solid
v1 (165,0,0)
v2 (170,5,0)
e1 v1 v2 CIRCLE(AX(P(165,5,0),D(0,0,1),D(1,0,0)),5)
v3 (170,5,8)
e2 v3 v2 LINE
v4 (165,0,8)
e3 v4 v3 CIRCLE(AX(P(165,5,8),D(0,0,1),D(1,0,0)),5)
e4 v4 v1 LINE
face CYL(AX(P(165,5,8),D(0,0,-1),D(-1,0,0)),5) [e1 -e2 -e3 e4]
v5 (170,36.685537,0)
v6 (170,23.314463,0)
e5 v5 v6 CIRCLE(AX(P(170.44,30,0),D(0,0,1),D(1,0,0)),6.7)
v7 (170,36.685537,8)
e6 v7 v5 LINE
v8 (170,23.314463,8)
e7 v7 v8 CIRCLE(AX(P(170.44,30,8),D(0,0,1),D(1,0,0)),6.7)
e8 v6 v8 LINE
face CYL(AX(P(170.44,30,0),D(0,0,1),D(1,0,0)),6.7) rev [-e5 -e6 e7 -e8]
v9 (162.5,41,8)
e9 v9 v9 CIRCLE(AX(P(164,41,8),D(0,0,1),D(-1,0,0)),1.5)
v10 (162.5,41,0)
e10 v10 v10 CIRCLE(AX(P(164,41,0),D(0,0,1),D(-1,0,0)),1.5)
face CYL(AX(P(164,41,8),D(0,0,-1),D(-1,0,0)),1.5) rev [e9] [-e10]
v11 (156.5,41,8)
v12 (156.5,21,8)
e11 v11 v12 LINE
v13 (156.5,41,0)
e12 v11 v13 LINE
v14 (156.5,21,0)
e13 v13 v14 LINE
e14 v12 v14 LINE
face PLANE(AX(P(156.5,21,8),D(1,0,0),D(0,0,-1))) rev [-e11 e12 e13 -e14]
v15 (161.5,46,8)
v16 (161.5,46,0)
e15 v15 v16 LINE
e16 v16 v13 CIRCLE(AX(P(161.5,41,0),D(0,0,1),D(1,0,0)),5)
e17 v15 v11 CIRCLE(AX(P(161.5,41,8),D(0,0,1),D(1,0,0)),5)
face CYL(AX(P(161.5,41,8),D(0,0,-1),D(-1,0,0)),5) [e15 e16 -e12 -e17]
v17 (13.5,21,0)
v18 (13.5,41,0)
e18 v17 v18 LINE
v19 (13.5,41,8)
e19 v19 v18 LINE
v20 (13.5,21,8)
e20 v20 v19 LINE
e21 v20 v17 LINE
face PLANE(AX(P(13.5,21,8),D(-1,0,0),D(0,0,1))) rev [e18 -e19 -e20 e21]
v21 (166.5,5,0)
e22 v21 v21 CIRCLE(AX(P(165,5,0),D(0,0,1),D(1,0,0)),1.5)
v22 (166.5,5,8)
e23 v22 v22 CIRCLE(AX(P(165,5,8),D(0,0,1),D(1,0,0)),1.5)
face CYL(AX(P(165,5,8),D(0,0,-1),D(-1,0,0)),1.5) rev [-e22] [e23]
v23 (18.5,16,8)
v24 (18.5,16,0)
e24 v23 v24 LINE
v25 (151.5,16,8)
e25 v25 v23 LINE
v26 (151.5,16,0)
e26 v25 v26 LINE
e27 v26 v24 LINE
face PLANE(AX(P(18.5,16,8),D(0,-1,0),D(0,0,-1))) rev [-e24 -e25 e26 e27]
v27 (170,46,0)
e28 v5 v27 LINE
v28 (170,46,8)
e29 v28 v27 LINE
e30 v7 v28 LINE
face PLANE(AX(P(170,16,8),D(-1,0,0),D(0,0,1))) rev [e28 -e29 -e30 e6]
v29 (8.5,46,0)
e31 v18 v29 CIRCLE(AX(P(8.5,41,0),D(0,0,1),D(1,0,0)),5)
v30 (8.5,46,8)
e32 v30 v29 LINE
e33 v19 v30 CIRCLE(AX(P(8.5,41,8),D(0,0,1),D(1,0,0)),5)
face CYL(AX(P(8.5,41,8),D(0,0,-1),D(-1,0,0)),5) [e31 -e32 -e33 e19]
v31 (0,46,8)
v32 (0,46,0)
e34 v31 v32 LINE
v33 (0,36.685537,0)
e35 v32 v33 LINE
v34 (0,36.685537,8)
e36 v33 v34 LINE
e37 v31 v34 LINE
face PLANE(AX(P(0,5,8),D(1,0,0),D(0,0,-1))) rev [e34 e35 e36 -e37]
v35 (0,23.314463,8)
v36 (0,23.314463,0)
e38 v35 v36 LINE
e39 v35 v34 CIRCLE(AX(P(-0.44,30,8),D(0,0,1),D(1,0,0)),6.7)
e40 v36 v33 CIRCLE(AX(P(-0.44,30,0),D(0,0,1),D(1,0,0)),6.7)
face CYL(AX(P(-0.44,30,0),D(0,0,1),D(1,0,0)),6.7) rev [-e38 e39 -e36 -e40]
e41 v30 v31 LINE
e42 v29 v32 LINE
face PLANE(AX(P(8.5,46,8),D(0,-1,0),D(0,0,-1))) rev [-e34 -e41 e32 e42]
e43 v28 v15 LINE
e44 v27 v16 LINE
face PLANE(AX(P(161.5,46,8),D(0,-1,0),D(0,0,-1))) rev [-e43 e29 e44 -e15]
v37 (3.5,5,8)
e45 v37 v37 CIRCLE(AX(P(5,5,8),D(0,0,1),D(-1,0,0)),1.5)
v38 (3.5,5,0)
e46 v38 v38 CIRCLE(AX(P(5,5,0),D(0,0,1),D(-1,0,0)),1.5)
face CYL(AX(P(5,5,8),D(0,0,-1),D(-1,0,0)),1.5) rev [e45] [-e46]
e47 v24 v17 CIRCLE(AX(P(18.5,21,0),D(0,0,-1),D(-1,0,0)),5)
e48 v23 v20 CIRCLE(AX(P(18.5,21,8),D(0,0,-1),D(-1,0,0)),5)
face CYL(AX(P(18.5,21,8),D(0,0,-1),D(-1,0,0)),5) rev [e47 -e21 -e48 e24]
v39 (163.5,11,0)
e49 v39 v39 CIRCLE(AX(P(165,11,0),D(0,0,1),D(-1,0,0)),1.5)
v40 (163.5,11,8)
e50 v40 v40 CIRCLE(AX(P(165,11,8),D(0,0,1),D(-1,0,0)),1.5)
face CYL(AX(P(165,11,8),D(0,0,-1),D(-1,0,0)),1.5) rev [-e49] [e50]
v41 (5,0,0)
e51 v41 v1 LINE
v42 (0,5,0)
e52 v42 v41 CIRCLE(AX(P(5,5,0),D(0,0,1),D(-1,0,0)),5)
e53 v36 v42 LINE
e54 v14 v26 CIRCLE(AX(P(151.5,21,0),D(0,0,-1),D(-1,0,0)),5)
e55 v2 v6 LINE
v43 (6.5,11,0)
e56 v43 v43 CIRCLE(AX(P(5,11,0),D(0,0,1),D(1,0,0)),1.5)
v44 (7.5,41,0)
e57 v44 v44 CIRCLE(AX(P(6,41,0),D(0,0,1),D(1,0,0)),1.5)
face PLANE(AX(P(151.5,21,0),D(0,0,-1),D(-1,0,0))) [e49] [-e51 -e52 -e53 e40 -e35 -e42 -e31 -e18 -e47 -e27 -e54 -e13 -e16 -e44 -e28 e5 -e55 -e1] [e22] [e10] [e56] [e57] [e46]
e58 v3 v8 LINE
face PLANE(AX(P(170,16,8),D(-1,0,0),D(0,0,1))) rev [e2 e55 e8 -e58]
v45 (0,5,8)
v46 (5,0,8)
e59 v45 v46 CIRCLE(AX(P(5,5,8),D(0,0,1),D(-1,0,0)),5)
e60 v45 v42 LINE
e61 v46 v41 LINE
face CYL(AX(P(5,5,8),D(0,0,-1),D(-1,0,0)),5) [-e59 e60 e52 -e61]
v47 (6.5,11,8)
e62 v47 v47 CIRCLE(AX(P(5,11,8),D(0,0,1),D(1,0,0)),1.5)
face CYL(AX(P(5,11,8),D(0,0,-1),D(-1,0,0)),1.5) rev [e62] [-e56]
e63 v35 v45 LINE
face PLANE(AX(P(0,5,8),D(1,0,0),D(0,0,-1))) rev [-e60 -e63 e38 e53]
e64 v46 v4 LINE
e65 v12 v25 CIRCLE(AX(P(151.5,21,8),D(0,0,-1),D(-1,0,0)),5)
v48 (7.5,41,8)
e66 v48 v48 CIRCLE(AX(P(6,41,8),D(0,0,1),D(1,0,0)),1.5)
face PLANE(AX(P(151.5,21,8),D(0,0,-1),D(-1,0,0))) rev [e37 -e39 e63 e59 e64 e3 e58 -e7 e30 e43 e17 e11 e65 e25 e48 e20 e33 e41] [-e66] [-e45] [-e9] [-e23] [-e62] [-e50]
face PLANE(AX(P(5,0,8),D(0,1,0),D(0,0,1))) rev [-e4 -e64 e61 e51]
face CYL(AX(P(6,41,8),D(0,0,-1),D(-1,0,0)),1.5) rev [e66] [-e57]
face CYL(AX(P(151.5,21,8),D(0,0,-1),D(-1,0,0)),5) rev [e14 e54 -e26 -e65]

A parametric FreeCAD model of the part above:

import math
import FreeCAD as App
import Part
import Sketcher

V = App.Vector
Q = App.Units.Quantity

doc = App.newDocument("Part")
body = doc.addObject("PartDesign::Body", "Body")

sketch1 = body.newObject("Sketcher::SketchObject", "Sketch")
sketch1.AttachmentSupport = (doc.getObject("XY_Plane"), [""])
sketch1.MapMode = "FlatFace"
sketch1.addGeometry(Part.LineSegment(V(5, 0, 0), V(165, 0, 0)), False)
sketch1.addGeometry(Part.ArcOfCircle(Part.Circle(V(165, 5, 0), V(0, 0, 1), 5), math.radians(-90), math.radians(0)), False)
sketch1.addGeometry(Part.LineSegment(V(170, 5, 0), V(170, 46, 0)), False)
sketch1.addGeometry(Part.LineSegment(V(170, 46, 0), V(161.5, 46, 0)), False)
sketch1.addGeometry(Part.ArcOfCircle(Part.Circle(V(161.5, 41, 0), V(0, 0, 1), 5), math.radians(90), math.radians(180)), False)
sketch1.addGeometry(Part.LineSegment(V(156.5, 41, 0), V(156.5, 21, 0)), False)
sketch1.addGeometry(Part.ArcOfCircle(Part.Circle(V(151.5, 21, 0), V(0, 0, 1), 5), math.radians(-90), math.radians(0)), False)
sketch1.addGeometry(Part.LineSegment(V(151.5, 16, 0), V(18.5, 16, 0)), False)
sketch1.addGeometry(Part.ArcOfCircle(Part.Circle(V(18.5, 21, 0), V(0, 0, 1), 5), math.radians(180), math.radians(270)), False)
sketch1.addGeometry(Part.LineSegment(V(13.5, 21, 0), V(13.5, 41, 0)), False)
sketch1.addGeometry(Part.ArcOfCircle(Part.Circle(V(8.5, 41, 0), V(0, 0, 1), 5), math.radians(0), math.radians(90)), False)
sketch1.addGeometry(Part.LineSegment(V(8.5, 46, 0), V(0, 46, 0)), False)
sketch1.addGeometry(Part.LineSegment(V(0, 46, 0), V(0, 5, 0)), False)
sketch1.addGeometry(Part.ArcOfCircle(Part.Circle(V(5, 5, 0), V(0, 0, 1), 5), math.radians(180), math.radians(270)), False)
sketch1.addGeometry(Part.Circle(V(5, 5, 0), V(0, 0, 1), 1.5), False)
sketch1.addGeometry(Part.Circle(V(5, 11, 0), V(0, 0, 1), 1.5), False)
sketch1.addGeometry(Part.Circle(V(165, 5, 0), V(0, 0, 1), 1.5), False)
sketch1.addGeometry(Part.Circle(V(165, 11, 0), V(0, 0, 1), 1.5), False)
sketch1.addGeometry(Part.Circle(V(6, 41, 0), V(0, 0, 1), 1.5), False)
sketch1.addGeometry(Part.Circle(V(164, 41, 0), V(0, 0, 1), 1.5), False)
sketch1.addConstraint(Sketcher.Constraint("Tangent", 0, 2, 1, 1))
sketch1.addConstraint(Sketcher.Constraint("Tangent", 1, 2, 2, 1))
sketch1.addConstraint(Sketcher.Constraint("Coincident", 2, 2, 3, 1))
sketch1.addConstraint(Sketcher.Constraint("Tangent", 3, 2, 4, 1))
sketch1.addConstraint(Sketcher.Constraint("Tangent", 4, 2, 5, 1))
sketch1.addConstraint(Sketcher.Constraint("Tangent", 5, 2, 6, 2))
sketch1.addConstraint(Sketcher.Constraint("Tangent", 6, 1, 7, 1))
sketch1.addConstraint(Sketcher.Constraint("Tangent", 7, 2, 8, 2))
sketch1.addConstraint(Sketcher.Constraint("Tangent", 8, 1, 9, 1))
sketch1.addConstraint(Sketcher.Constraint("Tangent", 9, 2, 10, 1))
sketch1.addConstraint(Sketcher.Constraint("Tangent", 10, 2, 11, 1))
sketch1.addConstraint(Sketcher.Constraint("Coincident", 11, 2, 12, 1))
sketch1.addConstraint(Sketcher.Constraint("Tangent", 12, 2, 13, 1))
sketch1.addConstraint(Sketcher.Constraint("Tangent", 13, 2, 0, 1))
sketch1.addConstraint(Sketcher.Constraint("Horizontal", 0))
sketch1.addConstraint(Sketcher.Constraint("Vertical", 2))
sketch1.addConstraint(Sketcher.Constraint("Horizontal", 3))
sketch1.addConstraint(Sketcher.Constraint("Vertical", 5))
sketch1.addConstraint(Sketcher.Constraint("Horizontal", 7))
sketch1.addConstraint(Sketcher.Constraint("Vertical", 9))
sketch1.addConstraint(Sketcher.Constraint("Horizontal", 11))
sketch1.addConstraint(Sketcher.Constraint("Vertical", 12))
sketch1.addConstraint(Sketcher.Constraint("Coincident", 14, 3, 13, 3))
sketch1.addConstraint(Sketcher.Constraint("Coincident", 16, 3, 1, 3))
sketch1.addConstraint(Sketcher.Constraint("Equal", 1, 4))
sketch1.addConstraint(Sketcher.Constraint("Equal", 4, 6))
sketch1.addConstraint(Sketcher.Constraint("Equal", 6, 8))
sketch1.addConstraint(Sketcher.Constraint("Equal", 8, 10))
sketch1.addConstraint(Sketcher.Constraint("Equal", 10, 13))
sketch1.addConstraint(Sketcher.Constraint("Equal", 14, 15))
sketch1.addConstraint(Sketcher.Constraint("Equal", 15, 16))
sketch1.addConstraint(Sketcher.Constraint("Equal", 16, 17))
sketch1.addConstraint(Sketcher.Constraint("Equal", 17, 18))
sketch1.addConstraint(Sketcher.Constraint("Equal", 18, 19))
sketch1.addConstraint(Sketcher.Constraint("PointOnObject", 0, 2, -1))
sketch1.addConstraint(Sketcher.Constraint("PointOnObject", 11, 2, -2))
sketch1.addConstraint(Sketcher.Constraint("Horizontal", 4, 3, 10, 3))
sketch1.addConstraint(Sketcher.Constraint("Horizontal", 15, 3, 17, 3))
sketch1.addConstraint(Sketcher.Constraint("Horizontal", 10, 3, 18, 3))
sketch1.addConstraint(Sketcher.Constraint("Horizontal", 18, 3, 19, 3))
sketch1.addConstraint(Sketcher.Constraint("Vertical", 14, 3, 15, 3))
sketch1.addConstraint(Sketcher.Constraint("Vertical", 16, 3, 17, 3))
sketch1.addConstraint(Sketcher.Constraint("Equal", 3, 11))
sketch1.addConstraint(Sketcher.Constraint("Diameter", 14, Q("3 mm")))
sketch1.addConstraint(Sketcher.Constraint("Radius", 1, Q("5 mm")))
sketch1.addConstraint(Sketcher.Constraint("DistanceX", 0, 1, 0, 2, Q("160 mm")))
sketch1.addConstraint(Sketcher.Constraint("DistanceX", 7, 2, 7, 1, Q("133 mm")))
sketch1.addConstraint(Sketcher.Constraint("DistanceY", 2, 1, 2, 2, Q("41 mm")))
sketch1.addConstraint(Sketcher.Constraint("DistanceY", 5, 2, 5, 1, Q("20 mm")))
sketch1.addConstraint(Sketcher.Constraint("DistanceY", -1, 1, 15, 3, Q("11 mm")))
sketch1.addConstraint(Sketcher.Constraint("DistanceX", -1, 1, 18, 3, Q("6 mm")))
sketch1.addConstraint(Sketcher.Constraint("DistanceX", -1, 1, 19, 3, Q("164 mm")))
pad1 = body.newObject("PartDesign::Pad", "Pad")
pad1.Profile = sketch1
pad1.Length = 8

sketch2 = body.newObject("Sketcher::SketchObject", "Sketch001")
sketch2.AttachmentSupport = (doc.getObject("XY_Plane"), [""])
sketch2.MapMode = "FlatFace"
sketch2.AttachmentOffset = App.Placement(V(0, 0, 8), App.Rotation())
sketch2.addGeometry(Part.LineSegment(V(0, 37, 0), V(0, 23, 0)), False)
sketch2.addGeometry(Part.ArcOfCircle(Part.Circle(V(0, 30, 0), V(0, 0, 1), 7), math.radians(-90), math.radians(90)), False)
sketch2.addGeometry(Part.LineSegment(V(170, 23, 0), V(170, 37, 0)), False)
sketch2.addGeometry(Part.ArcOfCircle(Part.Circle(V(170, 30, 0), V(0, 0, 1), 7), math.radians(90), math.radians(270)), False)
sketch2.addConstraint(Sketcher.Constraint("Coincident", 0, 1, 1, 2))
sketch2.addConstraint(Sketcher.Constraint("Coincident", 1, 1, 0, 2))
sketch2.addConstraint(Sketcher.Constraint("Coincident", 2, 1, 3, 2))
sketch2.addConstraint(Sketcher.Constraint("Coincident", 3, 1, 2, 2))
sketch2.addConstraint(Sketcher.Constraint("Vertical", 0))
sketch2.addConstraint(Sketcher.Constraint("Vertical", 2))
sketch2.addConstraint(Sketcher.Constraint("Equal", 1, 3))
sketch2.addConstraint(Sketcher.Constraint("Horizontal", 1, 3, 3, 3))
sketch2.addConstraint(Sketcher.Constraint("Vertical", 1, 3, 0, 1))
sketch2.addConstraint(Sketcher.Constraint("Vertical", 3, 3, 2, 1))
sketch2.addConstraint(Sketcher.Constraint("Radius", 1, Q("6.7 mm")))
sketch2.addConstraint(Sketcher.Constraint("DistanceY", -1, 1, 1, 3, Q("30 mm")))
sketch2.addConstraint(Sketcher.Constraint("DistanceX", 1, 3, -1, 1, Q("0.44 mm")))
sketch2.addConstraint(Sketcher.Constraint("DistanceX", -1, 1, 3, 3, Q("170.44 mm")))
pocket1 = body.newObject("PartDesign::Pocket", "Pocket")
pocket1.Profile = sketch2
pocket1.Type = "ThroughAll"

doc.recompute()
